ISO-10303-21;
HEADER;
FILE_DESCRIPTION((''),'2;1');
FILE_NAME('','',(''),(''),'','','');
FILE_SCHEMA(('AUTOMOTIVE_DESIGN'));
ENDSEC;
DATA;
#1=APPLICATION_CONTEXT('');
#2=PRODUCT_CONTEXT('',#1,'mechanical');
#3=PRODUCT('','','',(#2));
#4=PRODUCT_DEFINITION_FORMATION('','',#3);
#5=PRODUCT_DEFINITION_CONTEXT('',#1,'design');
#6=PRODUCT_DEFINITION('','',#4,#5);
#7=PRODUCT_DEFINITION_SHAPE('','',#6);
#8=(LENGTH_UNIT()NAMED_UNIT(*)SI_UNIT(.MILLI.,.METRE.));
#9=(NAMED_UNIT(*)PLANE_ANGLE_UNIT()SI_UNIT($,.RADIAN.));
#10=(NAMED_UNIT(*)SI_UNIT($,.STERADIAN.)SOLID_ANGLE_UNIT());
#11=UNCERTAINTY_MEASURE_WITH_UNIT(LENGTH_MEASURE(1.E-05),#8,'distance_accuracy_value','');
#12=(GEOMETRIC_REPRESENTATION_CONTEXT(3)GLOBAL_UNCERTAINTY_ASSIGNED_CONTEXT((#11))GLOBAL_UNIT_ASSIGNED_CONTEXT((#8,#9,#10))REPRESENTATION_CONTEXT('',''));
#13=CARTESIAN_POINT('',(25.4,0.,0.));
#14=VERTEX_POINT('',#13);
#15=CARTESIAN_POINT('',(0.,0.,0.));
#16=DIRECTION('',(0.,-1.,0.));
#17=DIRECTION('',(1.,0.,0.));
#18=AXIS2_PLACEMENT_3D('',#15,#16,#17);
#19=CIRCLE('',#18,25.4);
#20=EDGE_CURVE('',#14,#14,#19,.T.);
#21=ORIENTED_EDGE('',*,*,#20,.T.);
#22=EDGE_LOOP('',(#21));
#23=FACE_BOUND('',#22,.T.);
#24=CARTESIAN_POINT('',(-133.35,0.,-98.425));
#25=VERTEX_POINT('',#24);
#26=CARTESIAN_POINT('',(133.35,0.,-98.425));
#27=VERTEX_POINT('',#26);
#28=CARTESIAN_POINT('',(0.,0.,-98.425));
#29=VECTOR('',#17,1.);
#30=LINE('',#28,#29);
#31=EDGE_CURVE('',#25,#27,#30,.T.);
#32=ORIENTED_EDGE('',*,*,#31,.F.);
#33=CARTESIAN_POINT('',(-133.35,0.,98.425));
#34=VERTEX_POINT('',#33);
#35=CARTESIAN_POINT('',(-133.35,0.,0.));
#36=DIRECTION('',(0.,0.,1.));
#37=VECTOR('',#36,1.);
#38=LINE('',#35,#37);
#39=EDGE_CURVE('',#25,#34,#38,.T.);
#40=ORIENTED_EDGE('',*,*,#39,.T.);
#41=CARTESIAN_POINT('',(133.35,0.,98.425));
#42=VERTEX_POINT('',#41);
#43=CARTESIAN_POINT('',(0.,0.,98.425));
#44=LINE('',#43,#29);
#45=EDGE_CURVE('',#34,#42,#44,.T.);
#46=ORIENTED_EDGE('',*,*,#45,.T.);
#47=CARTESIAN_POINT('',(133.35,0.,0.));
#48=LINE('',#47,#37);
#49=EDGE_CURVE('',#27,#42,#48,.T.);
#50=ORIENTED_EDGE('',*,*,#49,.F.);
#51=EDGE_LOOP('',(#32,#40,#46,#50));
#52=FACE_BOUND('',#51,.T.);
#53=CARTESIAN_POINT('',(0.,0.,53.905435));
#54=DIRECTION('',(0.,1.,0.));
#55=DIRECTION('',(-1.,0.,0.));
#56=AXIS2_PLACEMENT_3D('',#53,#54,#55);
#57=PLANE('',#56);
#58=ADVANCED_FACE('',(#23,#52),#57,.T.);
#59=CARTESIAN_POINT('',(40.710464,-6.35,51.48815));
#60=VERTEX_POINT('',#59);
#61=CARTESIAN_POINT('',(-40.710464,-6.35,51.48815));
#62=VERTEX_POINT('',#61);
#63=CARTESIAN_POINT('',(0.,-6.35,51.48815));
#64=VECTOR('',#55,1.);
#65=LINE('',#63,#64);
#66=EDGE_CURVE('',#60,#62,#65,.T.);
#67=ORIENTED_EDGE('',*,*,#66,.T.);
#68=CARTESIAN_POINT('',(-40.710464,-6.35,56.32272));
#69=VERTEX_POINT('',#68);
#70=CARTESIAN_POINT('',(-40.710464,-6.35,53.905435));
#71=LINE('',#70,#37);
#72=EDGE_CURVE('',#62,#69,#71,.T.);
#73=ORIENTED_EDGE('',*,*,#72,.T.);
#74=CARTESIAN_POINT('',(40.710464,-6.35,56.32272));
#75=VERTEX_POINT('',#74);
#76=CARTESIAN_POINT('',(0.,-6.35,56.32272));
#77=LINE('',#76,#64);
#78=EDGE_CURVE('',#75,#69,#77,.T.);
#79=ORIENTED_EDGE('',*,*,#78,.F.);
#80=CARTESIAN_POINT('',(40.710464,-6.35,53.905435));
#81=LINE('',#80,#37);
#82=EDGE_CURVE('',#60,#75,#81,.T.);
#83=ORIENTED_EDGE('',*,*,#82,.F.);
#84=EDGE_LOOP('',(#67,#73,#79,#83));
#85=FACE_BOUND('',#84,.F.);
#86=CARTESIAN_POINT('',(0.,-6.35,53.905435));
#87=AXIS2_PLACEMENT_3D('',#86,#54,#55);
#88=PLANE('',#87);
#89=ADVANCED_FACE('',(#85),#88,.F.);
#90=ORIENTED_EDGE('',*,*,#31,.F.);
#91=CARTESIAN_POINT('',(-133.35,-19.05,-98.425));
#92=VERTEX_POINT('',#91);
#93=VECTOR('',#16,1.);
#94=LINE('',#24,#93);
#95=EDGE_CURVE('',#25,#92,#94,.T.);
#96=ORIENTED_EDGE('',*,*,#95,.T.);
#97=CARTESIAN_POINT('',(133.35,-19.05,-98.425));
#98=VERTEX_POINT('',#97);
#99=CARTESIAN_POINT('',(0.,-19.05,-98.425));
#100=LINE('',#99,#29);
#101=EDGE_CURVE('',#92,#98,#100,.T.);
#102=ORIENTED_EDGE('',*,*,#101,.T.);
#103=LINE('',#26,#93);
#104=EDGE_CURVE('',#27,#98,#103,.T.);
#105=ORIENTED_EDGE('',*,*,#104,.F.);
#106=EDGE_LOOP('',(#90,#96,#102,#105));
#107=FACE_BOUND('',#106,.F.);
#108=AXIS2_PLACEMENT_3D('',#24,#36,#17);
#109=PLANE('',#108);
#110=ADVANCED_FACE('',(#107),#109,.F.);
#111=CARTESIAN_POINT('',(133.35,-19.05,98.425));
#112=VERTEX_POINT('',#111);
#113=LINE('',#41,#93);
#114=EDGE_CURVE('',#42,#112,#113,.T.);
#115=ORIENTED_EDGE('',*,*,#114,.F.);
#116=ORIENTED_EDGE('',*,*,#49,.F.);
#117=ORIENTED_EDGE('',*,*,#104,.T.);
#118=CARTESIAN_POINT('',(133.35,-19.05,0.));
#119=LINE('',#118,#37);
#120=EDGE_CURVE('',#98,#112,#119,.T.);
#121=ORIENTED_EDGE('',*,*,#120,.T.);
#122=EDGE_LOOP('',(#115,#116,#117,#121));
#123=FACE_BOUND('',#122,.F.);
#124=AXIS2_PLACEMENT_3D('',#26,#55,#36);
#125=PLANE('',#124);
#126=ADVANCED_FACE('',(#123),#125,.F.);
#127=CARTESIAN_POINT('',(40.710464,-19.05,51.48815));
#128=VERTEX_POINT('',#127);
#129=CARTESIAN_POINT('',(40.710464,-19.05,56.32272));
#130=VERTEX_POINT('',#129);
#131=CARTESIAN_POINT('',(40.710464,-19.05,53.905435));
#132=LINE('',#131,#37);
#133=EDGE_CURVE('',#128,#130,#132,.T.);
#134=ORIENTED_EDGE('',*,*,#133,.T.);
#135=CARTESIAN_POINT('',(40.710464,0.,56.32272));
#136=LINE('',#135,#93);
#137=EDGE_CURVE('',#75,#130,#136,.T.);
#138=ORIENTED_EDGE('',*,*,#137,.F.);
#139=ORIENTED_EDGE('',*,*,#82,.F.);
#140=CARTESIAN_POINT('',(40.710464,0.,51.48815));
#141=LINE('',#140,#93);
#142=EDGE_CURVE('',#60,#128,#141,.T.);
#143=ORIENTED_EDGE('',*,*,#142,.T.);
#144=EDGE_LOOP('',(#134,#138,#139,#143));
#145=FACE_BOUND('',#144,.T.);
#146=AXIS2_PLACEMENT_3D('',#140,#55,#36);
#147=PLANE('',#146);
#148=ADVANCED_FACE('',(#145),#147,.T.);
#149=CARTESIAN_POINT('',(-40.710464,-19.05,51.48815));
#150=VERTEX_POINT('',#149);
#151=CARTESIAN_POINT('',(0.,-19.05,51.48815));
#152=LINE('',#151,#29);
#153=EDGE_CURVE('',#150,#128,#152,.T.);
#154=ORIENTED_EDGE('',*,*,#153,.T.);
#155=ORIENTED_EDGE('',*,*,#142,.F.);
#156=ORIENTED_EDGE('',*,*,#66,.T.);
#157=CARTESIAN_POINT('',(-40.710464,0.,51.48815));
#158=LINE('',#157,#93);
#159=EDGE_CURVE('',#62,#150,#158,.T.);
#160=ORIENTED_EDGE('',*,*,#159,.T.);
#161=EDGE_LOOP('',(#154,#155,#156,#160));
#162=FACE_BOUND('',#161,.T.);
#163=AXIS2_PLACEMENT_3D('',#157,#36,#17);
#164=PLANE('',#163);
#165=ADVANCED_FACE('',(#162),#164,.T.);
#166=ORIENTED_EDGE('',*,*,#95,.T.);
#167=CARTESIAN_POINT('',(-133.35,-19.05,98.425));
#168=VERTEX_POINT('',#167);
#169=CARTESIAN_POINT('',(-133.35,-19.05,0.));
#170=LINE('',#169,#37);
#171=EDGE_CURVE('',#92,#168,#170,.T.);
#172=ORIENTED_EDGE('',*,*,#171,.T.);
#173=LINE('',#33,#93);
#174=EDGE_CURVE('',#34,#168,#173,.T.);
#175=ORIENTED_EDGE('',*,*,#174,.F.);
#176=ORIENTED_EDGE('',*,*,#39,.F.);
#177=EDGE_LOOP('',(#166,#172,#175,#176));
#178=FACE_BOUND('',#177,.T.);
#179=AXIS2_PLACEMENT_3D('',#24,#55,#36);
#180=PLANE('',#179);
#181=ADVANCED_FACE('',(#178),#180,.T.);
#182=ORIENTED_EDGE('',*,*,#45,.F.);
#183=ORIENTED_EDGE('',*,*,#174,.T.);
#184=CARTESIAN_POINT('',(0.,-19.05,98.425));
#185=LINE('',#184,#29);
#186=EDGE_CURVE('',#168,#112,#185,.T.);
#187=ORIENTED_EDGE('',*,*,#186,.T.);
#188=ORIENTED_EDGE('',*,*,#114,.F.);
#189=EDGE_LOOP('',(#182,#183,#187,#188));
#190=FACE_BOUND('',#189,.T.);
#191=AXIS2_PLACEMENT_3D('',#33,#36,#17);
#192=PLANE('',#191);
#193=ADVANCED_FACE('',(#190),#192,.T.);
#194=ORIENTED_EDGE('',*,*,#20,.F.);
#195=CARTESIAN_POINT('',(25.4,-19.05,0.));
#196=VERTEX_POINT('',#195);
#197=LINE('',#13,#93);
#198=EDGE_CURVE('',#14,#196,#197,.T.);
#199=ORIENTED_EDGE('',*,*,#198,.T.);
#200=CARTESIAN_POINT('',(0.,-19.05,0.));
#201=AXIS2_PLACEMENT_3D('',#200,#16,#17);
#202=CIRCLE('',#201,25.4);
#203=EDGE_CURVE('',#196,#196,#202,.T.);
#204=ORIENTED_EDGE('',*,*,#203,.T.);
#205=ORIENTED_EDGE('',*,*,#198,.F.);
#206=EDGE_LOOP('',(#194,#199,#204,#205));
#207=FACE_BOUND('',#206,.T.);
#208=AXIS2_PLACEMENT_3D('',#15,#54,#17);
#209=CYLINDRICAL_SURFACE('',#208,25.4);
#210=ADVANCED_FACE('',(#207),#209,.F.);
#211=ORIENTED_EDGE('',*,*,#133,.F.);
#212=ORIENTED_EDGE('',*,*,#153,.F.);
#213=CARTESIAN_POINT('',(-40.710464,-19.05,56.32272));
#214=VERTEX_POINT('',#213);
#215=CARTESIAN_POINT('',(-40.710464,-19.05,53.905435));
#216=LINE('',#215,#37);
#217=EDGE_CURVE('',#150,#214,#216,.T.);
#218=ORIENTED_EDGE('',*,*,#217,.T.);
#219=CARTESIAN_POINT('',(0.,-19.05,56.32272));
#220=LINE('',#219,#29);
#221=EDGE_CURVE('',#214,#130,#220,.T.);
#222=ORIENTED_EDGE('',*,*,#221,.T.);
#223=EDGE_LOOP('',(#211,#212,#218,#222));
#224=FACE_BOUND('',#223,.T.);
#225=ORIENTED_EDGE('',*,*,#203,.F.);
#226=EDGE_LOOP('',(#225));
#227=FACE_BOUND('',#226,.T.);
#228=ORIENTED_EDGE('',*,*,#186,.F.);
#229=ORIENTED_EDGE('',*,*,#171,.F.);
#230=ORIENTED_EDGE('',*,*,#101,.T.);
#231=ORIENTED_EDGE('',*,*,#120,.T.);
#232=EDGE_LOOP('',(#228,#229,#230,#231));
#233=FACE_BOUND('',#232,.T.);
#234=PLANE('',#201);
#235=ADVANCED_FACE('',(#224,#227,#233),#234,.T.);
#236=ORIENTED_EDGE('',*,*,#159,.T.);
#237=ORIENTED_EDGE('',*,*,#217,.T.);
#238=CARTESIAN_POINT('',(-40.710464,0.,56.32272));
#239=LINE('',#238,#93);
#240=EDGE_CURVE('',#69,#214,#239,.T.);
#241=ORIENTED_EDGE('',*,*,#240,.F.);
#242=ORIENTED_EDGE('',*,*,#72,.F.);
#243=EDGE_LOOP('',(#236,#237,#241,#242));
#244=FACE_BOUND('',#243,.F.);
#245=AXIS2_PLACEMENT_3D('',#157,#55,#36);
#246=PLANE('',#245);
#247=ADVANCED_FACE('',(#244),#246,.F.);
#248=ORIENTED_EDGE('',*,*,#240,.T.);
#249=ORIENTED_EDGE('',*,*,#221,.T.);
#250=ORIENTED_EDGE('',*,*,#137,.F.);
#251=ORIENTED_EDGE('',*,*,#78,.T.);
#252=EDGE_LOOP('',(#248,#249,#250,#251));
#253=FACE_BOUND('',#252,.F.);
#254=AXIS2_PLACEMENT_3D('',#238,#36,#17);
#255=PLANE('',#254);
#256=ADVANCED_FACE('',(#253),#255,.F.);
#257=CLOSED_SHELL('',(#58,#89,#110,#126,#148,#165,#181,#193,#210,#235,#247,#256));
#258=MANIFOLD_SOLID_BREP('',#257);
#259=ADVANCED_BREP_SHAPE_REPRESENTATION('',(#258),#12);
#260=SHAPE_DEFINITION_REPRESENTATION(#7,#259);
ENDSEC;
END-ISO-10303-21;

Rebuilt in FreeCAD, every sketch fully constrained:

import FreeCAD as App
import Part
import Sketcher
from FreeCAD import Vector
Q = App.Units.Quantity


def add_polygon(sketch, points):
    """Adds a closed chain of lines whose ends are joined by coincident constraints."""
    first, n = sketch.GeometryCount, len(points)
    for a, b in zip(points, points[1:] + points[:1]):
        sketch.addGeometry(Part.LineSegment(App.Vector(*a, 0), App.Vector(*b, 0)), False)
    for i in range(n):
        sketch.addConstraint(Sketcher.Constraint("Coincident", first + i, 2, first + (i + 1) % n, 1))

doc = App.newDocument("Part")
body = doc.addObject("PartDesign::Body", "Body")

# Sketch on XZ plane
sketch1 = body.newObject("Sketcher::SketchObject", "Sketch")
sketch1.AttachmentSupport = (doc.getObject("XZ_Plane"), [""])
sketch1.MapMode = "FlatFace"
add_polygon(sketch1, [(-133.35, 98.425), (-133.35, -98.425), (133.35, -98.425), (133.35, 98.425)])  # lines 0-3
sketch1.addGeometry(Part.Circle(Vector(0, 0, 0), Vector(0, 0, 1), 25.4), False)  # 4
add_polygon(sketch1, [(40.710464, 51.48815), (-40.710464, 51.48815), (-40.710464, 56.32272), (40.710464, 56.32272)])  # lines 5-8
sketch1.addConstraint([
    Sketcher.Constraint("Vertical", 0),
    Sketcher.Constraint("Horizontal", 1),
    Sketcher.Constraint("Vertical", 2),
    Sketcher.Constraint("Horizontal", 3),
    Sketcher.Constraint("Horizontal", 5),
    Sketcher.Constraint("Vertical", 6),
    Sketcher.Constraint("Horizontal", 7),
    Sketcher.Constraint("Vertical", 8),
    Sketcher.Constraint("Coincident", 4, 3, -1, 1),
    Sketcher.Constraint("Symmetric", 0, 2, 2, 2, -1, 1),
    Sketcher.Constraint("Diameter", 4, Q("2 in")),
    Sketcher.Constraint("DistanceX", 1, 1, 1, 2, Q("10.5 in")),
    Sketcher.Constraint("DistanceY", 0, 2, 0, 1, Q("7.75 in")),
    Sketcher.Constraint("DistanceX", 5, 2, 5, 1, 81.420928),
    Sketcher.Constraint("DistanceY", 6, 1, 6, 2, 4.83457),
    Sketcher.Constraint("DistanceY", -1, 1, 5, 2, 51.48815),
    Sketcher.Constraint("DistanceX", 5, 2, -1, 1, 40.710464),
])
pad1 = body.newObject("PartDesign::Pad", "Pad")
pad1.Profile = sketch1
pad1.Length = Q("0.75 in")

# Sketch on XZ plane
sketch2 = body.newObject("Sketcher::SketchObject", "Sketch001")
sketch2.AttachmentSupport = (doc.getObject("XZ_Plane"), [""])
sketch2.MapMode = "FlatFace"
add_polygon(sketch2, [(40.710464, 56.32272), (40.710464, 51.48815), (-40.710464, 51.48815), (-40.710464, 56.32272)])  # lines 0-3
sketch2.addConstraint([
    Sketcher.Constraint("Vertical", 0),
    Sketcher.Constraint("Horizontal", 1),
    Sketcher.Constraint("Vertical", 2),
    Sketcher.Constraint("Horizontal", 3),
    Sketcher.Constraint("DistanceX", 1, 2, 1, 1, 81.420928),
    Sketcher.Constraint("DistanceY", 0, 2, 0, 1, 4.83457),
    Sketcher.Constraint("DistanceY", -1, 1, 0, 2, 51.48815),
    Sketcher.Constraint("DistanceX", -1, 1, 0, 2, 40.710464),
])
pad2 = body.newObject("PartDesign::Pad", "Pad001")
pad2.Profile = sketch2
pad2.Length = Q("0.25 in")

doc.recompute()
